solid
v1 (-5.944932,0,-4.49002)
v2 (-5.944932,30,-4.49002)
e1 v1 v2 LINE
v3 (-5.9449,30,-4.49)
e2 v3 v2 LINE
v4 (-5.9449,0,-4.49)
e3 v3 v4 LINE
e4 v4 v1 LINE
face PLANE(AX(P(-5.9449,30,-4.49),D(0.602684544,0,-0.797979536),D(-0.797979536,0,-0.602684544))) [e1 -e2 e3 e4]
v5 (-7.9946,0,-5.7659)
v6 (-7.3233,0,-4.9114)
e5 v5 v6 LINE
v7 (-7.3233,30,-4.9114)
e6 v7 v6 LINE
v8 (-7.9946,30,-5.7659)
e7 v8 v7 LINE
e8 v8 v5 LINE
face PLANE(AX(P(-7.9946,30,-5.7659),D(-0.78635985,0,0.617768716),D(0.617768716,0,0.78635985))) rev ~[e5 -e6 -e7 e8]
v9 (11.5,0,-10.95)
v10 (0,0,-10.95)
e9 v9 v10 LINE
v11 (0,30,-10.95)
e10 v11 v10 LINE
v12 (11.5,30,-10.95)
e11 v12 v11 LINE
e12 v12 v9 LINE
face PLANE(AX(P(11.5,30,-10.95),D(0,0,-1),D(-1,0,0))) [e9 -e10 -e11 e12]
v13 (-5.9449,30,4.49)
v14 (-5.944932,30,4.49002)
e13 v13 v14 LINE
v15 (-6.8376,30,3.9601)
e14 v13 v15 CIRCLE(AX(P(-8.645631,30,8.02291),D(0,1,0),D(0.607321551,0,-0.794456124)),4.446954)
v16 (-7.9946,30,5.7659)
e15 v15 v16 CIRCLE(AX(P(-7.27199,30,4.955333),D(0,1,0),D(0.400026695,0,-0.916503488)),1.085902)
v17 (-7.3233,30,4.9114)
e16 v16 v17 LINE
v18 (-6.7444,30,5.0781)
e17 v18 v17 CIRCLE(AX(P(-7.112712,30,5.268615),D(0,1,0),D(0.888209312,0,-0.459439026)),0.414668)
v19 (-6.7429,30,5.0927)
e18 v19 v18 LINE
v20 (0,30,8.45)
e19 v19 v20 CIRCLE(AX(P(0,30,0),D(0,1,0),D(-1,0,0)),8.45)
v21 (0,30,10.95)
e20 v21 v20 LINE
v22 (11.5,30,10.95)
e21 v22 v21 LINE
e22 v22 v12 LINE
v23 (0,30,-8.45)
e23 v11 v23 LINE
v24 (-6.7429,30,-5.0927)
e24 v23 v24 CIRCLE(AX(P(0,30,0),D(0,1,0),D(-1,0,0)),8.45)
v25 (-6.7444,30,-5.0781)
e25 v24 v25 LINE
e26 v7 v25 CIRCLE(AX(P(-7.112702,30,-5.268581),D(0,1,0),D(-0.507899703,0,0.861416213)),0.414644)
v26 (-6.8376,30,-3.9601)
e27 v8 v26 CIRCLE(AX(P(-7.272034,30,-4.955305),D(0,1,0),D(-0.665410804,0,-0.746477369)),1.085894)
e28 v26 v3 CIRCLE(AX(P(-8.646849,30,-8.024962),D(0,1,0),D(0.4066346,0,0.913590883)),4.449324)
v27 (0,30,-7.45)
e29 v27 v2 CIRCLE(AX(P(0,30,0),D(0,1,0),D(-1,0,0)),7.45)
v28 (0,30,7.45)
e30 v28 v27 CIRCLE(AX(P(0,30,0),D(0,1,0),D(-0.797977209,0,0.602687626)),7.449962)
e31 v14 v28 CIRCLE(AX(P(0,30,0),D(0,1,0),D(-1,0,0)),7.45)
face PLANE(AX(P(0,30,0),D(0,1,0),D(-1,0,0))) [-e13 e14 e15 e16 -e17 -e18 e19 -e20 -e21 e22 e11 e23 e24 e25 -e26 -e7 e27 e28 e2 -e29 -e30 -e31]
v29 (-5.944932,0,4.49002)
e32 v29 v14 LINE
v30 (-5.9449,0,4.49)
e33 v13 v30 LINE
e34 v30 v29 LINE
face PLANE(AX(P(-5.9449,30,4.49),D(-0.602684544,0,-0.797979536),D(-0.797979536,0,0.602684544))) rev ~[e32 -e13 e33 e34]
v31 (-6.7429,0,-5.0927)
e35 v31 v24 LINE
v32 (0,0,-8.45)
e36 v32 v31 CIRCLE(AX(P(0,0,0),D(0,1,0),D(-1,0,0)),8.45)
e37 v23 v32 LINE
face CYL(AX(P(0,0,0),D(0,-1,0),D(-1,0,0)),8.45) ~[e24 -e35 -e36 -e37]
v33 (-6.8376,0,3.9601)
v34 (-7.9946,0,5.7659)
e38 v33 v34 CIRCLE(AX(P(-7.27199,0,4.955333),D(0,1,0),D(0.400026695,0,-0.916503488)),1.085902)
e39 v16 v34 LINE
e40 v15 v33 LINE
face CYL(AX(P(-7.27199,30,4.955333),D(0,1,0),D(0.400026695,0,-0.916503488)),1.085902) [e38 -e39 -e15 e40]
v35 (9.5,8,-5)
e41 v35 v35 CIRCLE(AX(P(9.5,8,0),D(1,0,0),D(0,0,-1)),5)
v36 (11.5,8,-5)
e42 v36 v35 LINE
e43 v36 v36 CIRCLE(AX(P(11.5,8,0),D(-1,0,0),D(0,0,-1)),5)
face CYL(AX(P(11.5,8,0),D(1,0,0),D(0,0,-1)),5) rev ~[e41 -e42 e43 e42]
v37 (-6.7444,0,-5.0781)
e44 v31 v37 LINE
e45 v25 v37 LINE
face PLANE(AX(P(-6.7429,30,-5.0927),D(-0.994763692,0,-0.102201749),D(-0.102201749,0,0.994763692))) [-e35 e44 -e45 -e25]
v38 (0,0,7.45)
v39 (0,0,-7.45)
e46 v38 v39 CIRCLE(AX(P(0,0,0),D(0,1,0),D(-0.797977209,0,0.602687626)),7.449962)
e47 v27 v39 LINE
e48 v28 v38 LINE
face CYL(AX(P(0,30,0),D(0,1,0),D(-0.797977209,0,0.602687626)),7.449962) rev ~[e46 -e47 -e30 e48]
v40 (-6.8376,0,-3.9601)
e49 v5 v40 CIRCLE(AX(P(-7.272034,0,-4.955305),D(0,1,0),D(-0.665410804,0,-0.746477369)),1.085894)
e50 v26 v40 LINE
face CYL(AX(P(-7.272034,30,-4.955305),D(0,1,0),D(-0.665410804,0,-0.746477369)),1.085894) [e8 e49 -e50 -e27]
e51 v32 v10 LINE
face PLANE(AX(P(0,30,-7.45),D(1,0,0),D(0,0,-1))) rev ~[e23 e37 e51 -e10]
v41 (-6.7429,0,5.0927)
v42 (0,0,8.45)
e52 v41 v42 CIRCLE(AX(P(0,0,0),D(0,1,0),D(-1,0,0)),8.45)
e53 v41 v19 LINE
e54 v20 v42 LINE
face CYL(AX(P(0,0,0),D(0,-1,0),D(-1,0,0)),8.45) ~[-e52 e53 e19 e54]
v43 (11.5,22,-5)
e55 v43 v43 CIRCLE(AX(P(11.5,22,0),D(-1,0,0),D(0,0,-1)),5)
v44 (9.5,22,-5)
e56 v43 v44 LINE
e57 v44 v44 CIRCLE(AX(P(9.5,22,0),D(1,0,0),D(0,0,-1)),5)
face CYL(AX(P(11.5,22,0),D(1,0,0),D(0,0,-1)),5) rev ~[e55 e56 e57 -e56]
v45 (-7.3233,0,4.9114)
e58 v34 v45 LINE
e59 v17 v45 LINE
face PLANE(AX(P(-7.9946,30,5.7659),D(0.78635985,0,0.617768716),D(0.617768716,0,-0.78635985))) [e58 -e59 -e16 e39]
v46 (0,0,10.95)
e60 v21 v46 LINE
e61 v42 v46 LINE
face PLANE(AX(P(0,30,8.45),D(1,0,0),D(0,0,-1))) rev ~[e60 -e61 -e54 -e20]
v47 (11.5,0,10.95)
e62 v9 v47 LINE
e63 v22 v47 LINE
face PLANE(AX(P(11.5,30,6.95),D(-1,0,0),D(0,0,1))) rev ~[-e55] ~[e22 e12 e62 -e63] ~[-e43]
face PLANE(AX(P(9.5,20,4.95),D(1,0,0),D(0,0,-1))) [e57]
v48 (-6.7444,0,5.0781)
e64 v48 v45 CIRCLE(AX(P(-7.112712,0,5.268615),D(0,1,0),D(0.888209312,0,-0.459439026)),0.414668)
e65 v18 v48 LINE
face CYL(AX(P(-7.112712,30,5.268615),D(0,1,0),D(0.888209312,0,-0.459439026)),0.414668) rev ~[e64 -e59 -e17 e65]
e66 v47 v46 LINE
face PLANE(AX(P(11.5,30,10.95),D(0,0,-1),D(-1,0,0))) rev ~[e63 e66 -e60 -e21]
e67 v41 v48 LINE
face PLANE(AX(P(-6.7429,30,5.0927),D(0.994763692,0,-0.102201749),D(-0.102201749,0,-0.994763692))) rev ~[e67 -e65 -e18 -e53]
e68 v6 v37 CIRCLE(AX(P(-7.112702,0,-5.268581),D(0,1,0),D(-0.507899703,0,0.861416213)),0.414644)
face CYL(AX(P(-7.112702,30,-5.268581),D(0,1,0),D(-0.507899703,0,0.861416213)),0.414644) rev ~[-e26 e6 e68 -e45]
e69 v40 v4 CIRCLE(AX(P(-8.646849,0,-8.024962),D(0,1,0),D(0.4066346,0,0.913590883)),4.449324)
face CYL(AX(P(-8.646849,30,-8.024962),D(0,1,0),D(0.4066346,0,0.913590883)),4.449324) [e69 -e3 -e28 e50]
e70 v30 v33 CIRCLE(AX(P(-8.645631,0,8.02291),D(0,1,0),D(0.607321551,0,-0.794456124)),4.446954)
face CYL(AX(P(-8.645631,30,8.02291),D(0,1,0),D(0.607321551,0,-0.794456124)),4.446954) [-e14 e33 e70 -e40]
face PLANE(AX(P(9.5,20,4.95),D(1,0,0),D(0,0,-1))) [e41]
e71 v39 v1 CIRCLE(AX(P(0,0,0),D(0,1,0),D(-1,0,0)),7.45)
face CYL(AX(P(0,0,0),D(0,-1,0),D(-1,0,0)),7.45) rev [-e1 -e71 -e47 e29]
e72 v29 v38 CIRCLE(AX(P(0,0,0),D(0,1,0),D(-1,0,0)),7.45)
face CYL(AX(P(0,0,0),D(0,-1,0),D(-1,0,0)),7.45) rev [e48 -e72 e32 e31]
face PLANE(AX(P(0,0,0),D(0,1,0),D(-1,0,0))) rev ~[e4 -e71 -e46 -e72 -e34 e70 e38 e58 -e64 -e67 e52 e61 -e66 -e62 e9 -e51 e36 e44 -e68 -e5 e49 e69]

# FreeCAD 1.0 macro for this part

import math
import FreeCAD as App
import Part
import Sketcher

V = App.Vector
Q = App.Units.Quantity

doc = App.newDocument("Part")
body = doc.addObject("PartDesign::Body", "Body")

# Sketch on XZ plane
sketch1 = body.newObject("Sketcher::SketchObject", "Sketch")
sketch1.AttachmentSupport = (doc.getObject("XZ_Plane"), [""])
sketch1.MapMode = "FlatFace"
sketch1.addGeometry([
    Part.ArcOfCircle(Part.Circle(V(0, 0, 0), V(0, 0, 1), 7.5), math.radians(-143), math.radians(143)),
    Part.LineSegment(V(-5.9, 4.5, 0), V(-6.7, 5.1, 0)),
    Part.ArcOfCircle(Part.Circle(V(0, 0, 0), V(0, 0, 1), 8.4), math.radians(-143), math.radians(143)),
    Part.LineSegment(V(-6.7, -5.1, 0), V(-5.9, -4.5, 0)),
], False)
sketch1.addConstraint([
    Sketcher.Constraint("Coincident", 0, 2, 1, 1),
    Sketcher.Constraint("Coincident", 1, 2, 2, 2),
    Sketcher.Constraint("Coincident", 2, 1, 3, 1),
    Sketcher.Constraint("Coincident", 3, 2, 0, 1),
    Sketcher.Constraint("Coincident", 0, 3, -1, 1),
    Sketcher.Constraint("Coincident", 2, 3, -1, 1),
    Sketcher.Constraint("Vertical", 1, 2, 2, 1),
    Sketcher.Constraint("Vertical", 0, 2, 3, 2),
    Sketcher.Constraint("Radius", 0, Q("7.45 mm")),
    Sketcher.Constraint("Radius", 2, Q("8.45 mm")),
    Sketcher.Constraint("DistanceY", -1, 1, 0, 2, Q("4.49 mm")),
    Sketcher.Constraint("DistanceX", 1, 2, -1, 1, Q("6.743 mm")),
])
pad1 = body.newObject("PartDesign::Pad", "Pad")
pad1.Profile = sketch1
pad1.Length = 30
pad1.Reversed = True

# Sketch on XZ plane
sketch2 = body.newObject("Sketcher::SketchObject", "Sketch001")
sketch2.AttachmentSupport = (doc.getObject("XZ_Plane"), [""])
sketch2.MapMode = "FlatFace"
sketch2.AttachmentOffset = App.Placement(V(0, 0, -30), App.Rotation())
sketch2.addGeometry([
    Part.LineSegment(V(0, 7.5, 0), V(0, 10.9, 0)),  # 0
    Part.LineSegment(V(0, 10.9, 0), V(11.5, 10.9, 0)),  # 1
    Part.LineSegment(V(11.5, 10.9, 0), V(11.5, -10.9, 0)),  # 2
    Part.LineSegment(V(11.5, -10.9, 0), V(0, -10.9, 0)),  # 3
    Part.LineSegment(V(0, -10.9, 0), V(0, -7.5, 0)),  # 4
    Part.ArcOfCircle(Part.Circle(V(0, 0, 0), V(0, 0, 1), 7.4), math.radians(-90), math.radians(90)),  # 5
], False)
sketch2.addConstraint([
    Sketcher.Constraint("Coincident", 0, 2, 1, 1),
    Sketcher.Constraint("Coincident", 1, 2, 2, 1),
    Sketcher.Constraint("Coincident", 2, 2, 3, 1),
    Sketcher.Constraint("Coincident", 3, 2, 4, 1),
    Sketcher.Constraint("Coincident", 4, 2, 5, 1),
    Sketcher.Constraint("Coincident", 5, 2, 0, 1),
    Sketcher.Constraint("Vertical", 0),
    Sketcher.Constraint("Horizontal", 1),
    Sketcher.Constraint("Vertical", 2),
    Sketcher.Constraint("Horizontal", 3),
    Sketcher.Constraint("Vertical", 4),
    Sketcher.Constraint("Coincident", 5, 3, -1, 1),
    Sketcher.Constraint("Symmetric", 0, 2, 3, 2, -1, 1),
    Sketcher.Constraint("PointOnObject", 0, 2, -2),
    Sketcher.Constraint("DistanceY", 0, 1, 0, 2, Q("3.5 mm")),
    Sketcher.Constraint("DistanceY", 2, 2, 2, 1, Q("21.9 mm")),
    Sketcher.Constraint("DistanceX", 1, 1, 1, 2, Q("11.5 mm")),
])
pad2 = body.newObject("PartDesign::Pad", "Pad001")
pad2.Profile = sketch2
pad2.Length = 30

# Sketch on YZ plane
sketch3 = body.newObject("Sketcher::SketchObject", "Sketch002")
sketch3.AttachmentSupport = (doc.getObject("YZ_Plane"), [""])
sketch3.MapMode = "FlatFace"
sketch3.AttachmentOffset = App.Placement(V(0, 0, 11.5), App.Rotation())
sketch3.addGeometry([
    Part.Circle(V(8, 0, 0), V(0, 0, 1), 5),
    Part.Circle(V(22, 0, 0), V(0, 0, 1), 5),
], False)
sketch3.addConstraint([
    Sketcher.Constraint("Equal", 0, 1),
    Sketcher.Constraint("PointOnObject", 0, 3, -1),
    Sketcher.Constraint("PointOnObject", 1, 3, -1),
    Sketcher.Constraint("Diameter", 0, Q("10 mm")),
    Sketcher.Constraint("DistanceX", -1, 1, 0, 3, Q("8 mm")),
    Sketcher.Constraint("DistanceX", -1, 1, 1, 3, Q("22 mm")),
])
pocket1 = body.newObject("PartDesign::Pocket", "Pocket")
pocket1.Profile = sketch3
pocket1.Length = 2

# Sketch on XZ plane
sketch4 = body.newObject("Sketcher::SketchObject", "Sketch003")
sketch4.AttachmentSupport = (doc.getObject("XZ_Plane"), [""])
sketch4.MapMode = "FlatFace"
sketch4.AttachmentOffset = App.Placement(V(0, 0, -30), App.Rotation())
sketch4.addGeometry([
    Part.LineSegment(V(-6.743, 5.093, 0), V(-5.945, 4.49, 0)),  # 0
    Part.ArcOfCircle(Part.Circle(V(-8.646, 8.023, 0), V(0, 0, 1), 4.447), math.radians(-66.01), math.radians(-52.6)),  # 1
    Part.ArcOfCircle(Part.Circle(V(-7.272, 4.955, 0), V(0, 0, 1), 1.086), math.radians(132), math.radians(294)),  # 2
    Part.LineSegment(V(-7.995, 5.766, 0), V(-7.323, 4.911, 0)),  # 3
    Part.ArcOfCircle(Part.Circle(V(-7.113, 5.269, 0), V(0, 0, 1), 0.415), math.radians(-121), math.radians(-27)),  # 4
    Part.LineSegment(V(-6.744, 5.078, 0), V(-6.743, 5.093, 0)),  # 5
    Part.ArcOfCircle(Part.Circle(V(-7.272, -4.955, 0), V(0, 0, 1), 1.086), math.radians(66), math.radians(228)),  # 6
    Part.ArcOfCircle(Part.Circle(V(-8.647, -8.025, 0), V(0, 0, 1), 4.449), math.radians(52.61), math.radians(66.01)),  # 7
    Part.LineSegment(V(-5.945, -4.49, 0), V(-6.743, -5.093, 0)),  # 8
    Part.LineSegment(V(-6.743, -5.093, 0), V(-6.744, -5.078, 0)),  # 9
    Part.ArcOfCircle(Part.Circle(V(-7.113, -5.269, 0), V(0, 0, 1), 0.415), math.radians(27), math.radians(121)),  # 10
    Part.LineSegment(V(-7.323, -4.911, 0), V(-7.995, -5.766, 0)),  # 11
], False)
sketch4.addConstraint([
    Sketcher.Constraint("Coincident", 0, 2, 1, 2),
    Sketcher.Constraint("Coincident", 1, 1, 2, 2),
    Sketcher.Constraint("Coincident", 2, 1, 3, 1),
    Sketcher.Constraint("Coincident", 3, 2, 4, 1),
    Sketcher.Constraint("Coincident", 4, 2, 5, 1),
    Sketcher.Constraint("Coincident", 5, 2, 0, 1),
    Sketcher.Constraint("Coincident", 6, 1, 7, 2),
    Sketcher.Constraint("Coincident", 7, 1, 8, 1),
    Sketcher.Constraint("Coincident", 8, 2, 9, 1),
    Sketcher.Constraint("Coincident", 9, 2, 10, 1),
    Sketcher.Constraint("Coincident", 10, 2, 11, 1),
    Sketcher.Constraint("Coincident", 11, 2, 6, 2),
    Sketcher.Constraint("Equal", 2, 6),
    Sketcher.Constraint("Equal", 4, 10),
    Sketcher.Constraint("Symmetric", 2, 3, 6, 3, -1),
    Sketcher.Constraint("Symmetric", 4, 3, 10, 3, -1),
    Sketcher.Constraint("Symmetric", 0, 2, 7, 1, -1),
    Sketcher.Constraint("Symmetric", 5, 2, 8, 2, -1),
    Sketcher.Constraint("Vertical", 1, 1, 6, 1),
    Sketcher.Constraint("Vertical", 4, 2, 9, 2),
    Sketcher.Constraint("Vertical", 3, 2, 10, 2),
    Sketcher.Constraint("Vertical", 2, 1, 11, 2),
    Sketcher.Constraint("Radius", 6, Q("1.086 mm")),
    Sketcher.Constraint("Distance", 0, Q("1 mm")),
    Sketcher.Constraint("Radius", 1, Q("4.447 mm")),
    Sketcher.Constraint("Radius", 4, Q("0.4147 mm")),
    Sketcher.Constraint("Radius", 7, Q("4.4493 mm")),
    Sketcher.Constraint("DistanceY", -1, 1, 0, 2, Q("4.49 mm")),
    Sketcher.Constraint("DistanceY", -1, 1, 1, 1, Q("3.96 mm")),
    Sketcher.Constraint("DistanceY", -1, 1, 1, 3, Q("8.023 mm")),
    Sketcher.Constraint("DistanceX", 2, 3, -1, 1, Q("7.272 mm")),
    Sketcher.Constraint("DistanceX", 0, 2, -1, 1, Q("5.945 mm")),
    Sketcher.Constraint("DistanceY", -1, 1, 4, 2, Q("5.078 mm")),
    Sketcher.Constraint("DistanceX", 5, 2, -1, 1, Q("6.743 mm")),
    Sketcher.Constraint("DistanceY", 11, 2, -1, 1, Q("5.766 mm")),
    Sketcher.Constraint("DistanceX", 1, 3, 4, 3, Q("1.533 mm")),
    Sketcher.Constraint("DistanceY", 6, 3, 4, 3, Q("10.224 mm")),
    Sketcher.Constraint("DistanceY", 3, 2, 2, 3, Q("0.044 mm")),
])
pad3 = body.newObject("PartDesign::Pad", "Pad002")
pad3.Profile = sketch4
pad3.Length = 30

doc.recompute()
